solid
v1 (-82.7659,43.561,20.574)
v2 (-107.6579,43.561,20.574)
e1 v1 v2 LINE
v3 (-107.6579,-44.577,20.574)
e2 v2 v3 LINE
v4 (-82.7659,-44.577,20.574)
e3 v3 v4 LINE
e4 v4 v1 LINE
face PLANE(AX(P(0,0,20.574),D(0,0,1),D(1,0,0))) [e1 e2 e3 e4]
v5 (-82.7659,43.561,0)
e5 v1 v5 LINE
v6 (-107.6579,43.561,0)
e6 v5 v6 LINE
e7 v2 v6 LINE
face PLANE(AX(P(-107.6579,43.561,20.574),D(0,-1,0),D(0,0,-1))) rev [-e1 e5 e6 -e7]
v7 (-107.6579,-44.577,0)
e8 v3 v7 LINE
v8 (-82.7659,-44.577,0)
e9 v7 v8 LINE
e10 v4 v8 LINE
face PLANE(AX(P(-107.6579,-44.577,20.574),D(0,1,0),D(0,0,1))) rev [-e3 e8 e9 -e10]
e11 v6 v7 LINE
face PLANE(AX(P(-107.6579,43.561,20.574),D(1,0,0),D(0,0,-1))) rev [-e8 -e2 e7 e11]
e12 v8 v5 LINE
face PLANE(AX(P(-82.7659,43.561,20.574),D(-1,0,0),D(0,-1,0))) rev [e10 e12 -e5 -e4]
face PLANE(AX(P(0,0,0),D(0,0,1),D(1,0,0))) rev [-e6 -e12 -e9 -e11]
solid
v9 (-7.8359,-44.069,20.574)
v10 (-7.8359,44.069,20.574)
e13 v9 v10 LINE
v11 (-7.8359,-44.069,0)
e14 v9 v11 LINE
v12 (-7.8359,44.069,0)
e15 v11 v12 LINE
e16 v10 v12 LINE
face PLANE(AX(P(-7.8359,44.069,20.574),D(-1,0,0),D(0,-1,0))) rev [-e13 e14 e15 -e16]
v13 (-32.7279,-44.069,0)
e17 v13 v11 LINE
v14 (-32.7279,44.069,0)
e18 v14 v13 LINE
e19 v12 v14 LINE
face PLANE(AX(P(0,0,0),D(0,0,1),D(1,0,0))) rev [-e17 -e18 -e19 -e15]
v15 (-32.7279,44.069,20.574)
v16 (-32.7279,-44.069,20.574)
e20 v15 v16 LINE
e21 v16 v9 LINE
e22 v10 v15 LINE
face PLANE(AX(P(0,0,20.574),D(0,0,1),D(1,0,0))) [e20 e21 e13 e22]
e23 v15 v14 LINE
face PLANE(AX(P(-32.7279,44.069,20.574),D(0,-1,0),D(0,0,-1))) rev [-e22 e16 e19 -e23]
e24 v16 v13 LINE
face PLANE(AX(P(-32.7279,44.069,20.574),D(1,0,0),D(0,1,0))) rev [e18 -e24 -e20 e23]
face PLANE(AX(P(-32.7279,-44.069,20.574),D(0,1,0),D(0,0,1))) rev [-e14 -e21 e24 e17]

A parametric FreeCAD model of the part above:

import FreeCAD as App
import Part
import Sketcher

V = App.Vector
Q = App.Units.Quantity


def add_polygon(sketch, points):
    """Adds a closed chain of lines whose ends are joined by coincident constraints."""
    first, n = sketch.GeometryCount, len(points)
    for a, b in zip(points, points[1:] + points[:1]):
        sketch.addGeometry(Part.LineSegment(App.Vector(*a, 0), App.Vector(*b, 0)), False)
    for i in range(n):
        sketch.addConstraint(Sketcher.Constraint("Coincident", first + i, 2, first + (i + 1) % n, 1))

doc = App.newDocument("Part")
body = doc.addObject("PartDesign::Body", "Body")

sketch1 = body.newObject("Sketcher::SketchObject", "Sketch")
sketch1.AttachmentSupport = (doc.getObject("XY_Plane"), [""])
sketch1.MapMode = "FlatFace"
add_polygon(sketch1, [(-33, 44), (-33, -44), (-8, -44), (-8, 44)])
sketch1.addConstraint([
    Sketcher.Constraint("Vertical", 0),
    Sketcher.Constraint("Horizontal", 1),
    Sketcher.Constraint("Vertical", 2),
    Sketcher.Constraint("Horizontal", 3),
    Sketcher.Constraint("DistanceX", 1, 1, 1, 2, Q("0.98 in")),
    Sketcher.Constraint("DistanceY", 0, 2, 0, 1, Q("3.47 in")),
    Sketcher.Constraint("DistanceY", 0, 2, -1, 1, Q("1.735 in")),
    Sketcher.Constraint("DistanceX", 0, 2, -1, 1, Q("1.2885 in")),
])
pad1 = body.newObject("PartDesign::Pad", "Pad")
pad1.Profile = sketch1
pad1.Length = Q("0.81 in")
body2 = doc.addObject("PartDesign::Body", "Body001")

sketch2 = body2.newObject("Sketcher::SketchObject", "Sketch001")
sketch2.AttachmentSupport = (doc.getObject("XY_Plane001"), [""])
sketch2.MapMode = "FlatFace"
add_polygon(sketch2, [(-108, 44), (-108, -45), (-83, -45), (-83, 44)])
sketch2.addConstraint([
    Sketcher.Constraint("Vertical", 0),
    Sketcher.Constraint("Horizontal", 1),
    Sketcher.Constraint("Vertical", 2),
    Sketcher.Constraint("Horizontal", 3),
    Sketcher.Constraint("DistanceX", 1, 1, 1, 2, Q("0.98 in")),
    Sketcher.Constraint("DistanceY", 0, 2, 0, 1, Q("3.47 in")),
    Sketcher.Constraint("DistanceY", 0, 2, -1, 1, Q("1.755 in")),
    Sketcher.Constraint("DistanceX", 0, 2, -1, 1, Q("4.2385 in")),
])
pad2 = body2.newObject("PartDesign::Pad", "Pad001")
pad2.Profile = sketch2
pad2.Length = Q("0.81 in")

doc.recompute()
